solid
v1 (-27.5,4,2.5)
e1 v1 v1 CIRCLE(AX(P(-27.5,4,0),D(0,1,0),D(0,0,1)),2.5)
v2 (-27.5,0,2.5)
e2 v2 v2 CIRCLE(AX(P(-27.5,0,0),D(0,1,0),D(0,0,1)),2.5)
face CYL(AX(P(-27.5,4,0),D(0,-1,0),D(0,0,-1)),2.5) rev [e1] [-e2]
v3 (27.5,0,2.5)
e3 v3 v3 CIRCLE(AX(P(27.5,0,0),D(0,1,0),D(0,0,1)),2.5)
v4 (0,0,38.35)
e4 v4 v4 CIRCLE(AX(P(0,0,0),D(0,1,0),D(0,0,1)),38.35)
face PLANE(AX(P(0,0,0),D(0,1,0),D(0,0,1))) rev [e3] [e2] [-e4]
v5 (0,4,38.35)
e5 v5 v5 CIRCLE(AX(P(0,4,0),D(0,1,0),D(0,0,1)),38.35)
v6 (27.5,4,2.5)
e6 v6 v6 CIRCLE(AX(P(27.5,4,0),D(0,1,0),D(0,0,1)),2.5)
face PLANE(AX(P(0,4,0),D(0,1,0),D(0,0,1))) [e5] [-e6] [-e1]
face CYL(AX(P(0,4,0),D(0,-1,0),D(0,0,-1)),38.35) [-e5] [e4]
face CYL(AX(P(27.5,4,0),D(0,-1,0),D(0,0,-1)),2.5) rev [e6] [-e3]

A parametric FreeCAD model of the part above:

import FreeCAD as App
import Part
import Sketcher
from FreeCAD import Vector
Q = App.Units.Quantity

doc = App.newDocument("Part")
body = doc.addObject("PartDesign::Body", "Body")

# Sketch on XZ plane
sketch1 = body.newObject("Sketcher::SketchObject", "Sketch")
sketch1.AttachmentSupport = (doc.getObject("XZ_Plane"), [""])
sketch1.MapMode = "FlatFace"
sketch1.addGeometry(Part.Circle(Vector(0, 0, 0), Vector(0, 0, 1), 38.4), False)
sketch1.addGeometry(Part.Circle(Vector(-27.5, 0, 0), Vector(0, 0, 1), 2.5), False)
sketch1.addGeometry(Part.Circle(Vector(27.5, 0, 0), Vector(0, 0, 1), 2.5), False)
sketch1.addConstraint(Sketcher.Constraint("Coincident", 0, 3, -1, 1))
sketch1.addConstraint(Sketcher.Constraint("Equal", 1, 2))
sketch1.addConstraint(Sketcher.Constraint("Symmetric", 1, 3, 2, 3, -1, 1))
sketch1.addConstraint(Sketcher.Constraint("PointOnObject", 1, 3, -1))
sketch1.addConstraint(Sketcher.Constraint("Diameter", 1, Q("5 mm")))
sketch1.addConstraint(Sketcher.Constraint("Diameter", 0, Q("76.7 mm")))
sketch1.addConstraint(Sketcher.Constraint("DistanceX", 1, 3, 2, 3, Q("55 mm")))
pad1 = body.newObject("PartDesign::Pad", "Pad")
pad1.Profile = sketch1
pad1.Length = 4
pad1.Reversed = True

doc.recompute()
